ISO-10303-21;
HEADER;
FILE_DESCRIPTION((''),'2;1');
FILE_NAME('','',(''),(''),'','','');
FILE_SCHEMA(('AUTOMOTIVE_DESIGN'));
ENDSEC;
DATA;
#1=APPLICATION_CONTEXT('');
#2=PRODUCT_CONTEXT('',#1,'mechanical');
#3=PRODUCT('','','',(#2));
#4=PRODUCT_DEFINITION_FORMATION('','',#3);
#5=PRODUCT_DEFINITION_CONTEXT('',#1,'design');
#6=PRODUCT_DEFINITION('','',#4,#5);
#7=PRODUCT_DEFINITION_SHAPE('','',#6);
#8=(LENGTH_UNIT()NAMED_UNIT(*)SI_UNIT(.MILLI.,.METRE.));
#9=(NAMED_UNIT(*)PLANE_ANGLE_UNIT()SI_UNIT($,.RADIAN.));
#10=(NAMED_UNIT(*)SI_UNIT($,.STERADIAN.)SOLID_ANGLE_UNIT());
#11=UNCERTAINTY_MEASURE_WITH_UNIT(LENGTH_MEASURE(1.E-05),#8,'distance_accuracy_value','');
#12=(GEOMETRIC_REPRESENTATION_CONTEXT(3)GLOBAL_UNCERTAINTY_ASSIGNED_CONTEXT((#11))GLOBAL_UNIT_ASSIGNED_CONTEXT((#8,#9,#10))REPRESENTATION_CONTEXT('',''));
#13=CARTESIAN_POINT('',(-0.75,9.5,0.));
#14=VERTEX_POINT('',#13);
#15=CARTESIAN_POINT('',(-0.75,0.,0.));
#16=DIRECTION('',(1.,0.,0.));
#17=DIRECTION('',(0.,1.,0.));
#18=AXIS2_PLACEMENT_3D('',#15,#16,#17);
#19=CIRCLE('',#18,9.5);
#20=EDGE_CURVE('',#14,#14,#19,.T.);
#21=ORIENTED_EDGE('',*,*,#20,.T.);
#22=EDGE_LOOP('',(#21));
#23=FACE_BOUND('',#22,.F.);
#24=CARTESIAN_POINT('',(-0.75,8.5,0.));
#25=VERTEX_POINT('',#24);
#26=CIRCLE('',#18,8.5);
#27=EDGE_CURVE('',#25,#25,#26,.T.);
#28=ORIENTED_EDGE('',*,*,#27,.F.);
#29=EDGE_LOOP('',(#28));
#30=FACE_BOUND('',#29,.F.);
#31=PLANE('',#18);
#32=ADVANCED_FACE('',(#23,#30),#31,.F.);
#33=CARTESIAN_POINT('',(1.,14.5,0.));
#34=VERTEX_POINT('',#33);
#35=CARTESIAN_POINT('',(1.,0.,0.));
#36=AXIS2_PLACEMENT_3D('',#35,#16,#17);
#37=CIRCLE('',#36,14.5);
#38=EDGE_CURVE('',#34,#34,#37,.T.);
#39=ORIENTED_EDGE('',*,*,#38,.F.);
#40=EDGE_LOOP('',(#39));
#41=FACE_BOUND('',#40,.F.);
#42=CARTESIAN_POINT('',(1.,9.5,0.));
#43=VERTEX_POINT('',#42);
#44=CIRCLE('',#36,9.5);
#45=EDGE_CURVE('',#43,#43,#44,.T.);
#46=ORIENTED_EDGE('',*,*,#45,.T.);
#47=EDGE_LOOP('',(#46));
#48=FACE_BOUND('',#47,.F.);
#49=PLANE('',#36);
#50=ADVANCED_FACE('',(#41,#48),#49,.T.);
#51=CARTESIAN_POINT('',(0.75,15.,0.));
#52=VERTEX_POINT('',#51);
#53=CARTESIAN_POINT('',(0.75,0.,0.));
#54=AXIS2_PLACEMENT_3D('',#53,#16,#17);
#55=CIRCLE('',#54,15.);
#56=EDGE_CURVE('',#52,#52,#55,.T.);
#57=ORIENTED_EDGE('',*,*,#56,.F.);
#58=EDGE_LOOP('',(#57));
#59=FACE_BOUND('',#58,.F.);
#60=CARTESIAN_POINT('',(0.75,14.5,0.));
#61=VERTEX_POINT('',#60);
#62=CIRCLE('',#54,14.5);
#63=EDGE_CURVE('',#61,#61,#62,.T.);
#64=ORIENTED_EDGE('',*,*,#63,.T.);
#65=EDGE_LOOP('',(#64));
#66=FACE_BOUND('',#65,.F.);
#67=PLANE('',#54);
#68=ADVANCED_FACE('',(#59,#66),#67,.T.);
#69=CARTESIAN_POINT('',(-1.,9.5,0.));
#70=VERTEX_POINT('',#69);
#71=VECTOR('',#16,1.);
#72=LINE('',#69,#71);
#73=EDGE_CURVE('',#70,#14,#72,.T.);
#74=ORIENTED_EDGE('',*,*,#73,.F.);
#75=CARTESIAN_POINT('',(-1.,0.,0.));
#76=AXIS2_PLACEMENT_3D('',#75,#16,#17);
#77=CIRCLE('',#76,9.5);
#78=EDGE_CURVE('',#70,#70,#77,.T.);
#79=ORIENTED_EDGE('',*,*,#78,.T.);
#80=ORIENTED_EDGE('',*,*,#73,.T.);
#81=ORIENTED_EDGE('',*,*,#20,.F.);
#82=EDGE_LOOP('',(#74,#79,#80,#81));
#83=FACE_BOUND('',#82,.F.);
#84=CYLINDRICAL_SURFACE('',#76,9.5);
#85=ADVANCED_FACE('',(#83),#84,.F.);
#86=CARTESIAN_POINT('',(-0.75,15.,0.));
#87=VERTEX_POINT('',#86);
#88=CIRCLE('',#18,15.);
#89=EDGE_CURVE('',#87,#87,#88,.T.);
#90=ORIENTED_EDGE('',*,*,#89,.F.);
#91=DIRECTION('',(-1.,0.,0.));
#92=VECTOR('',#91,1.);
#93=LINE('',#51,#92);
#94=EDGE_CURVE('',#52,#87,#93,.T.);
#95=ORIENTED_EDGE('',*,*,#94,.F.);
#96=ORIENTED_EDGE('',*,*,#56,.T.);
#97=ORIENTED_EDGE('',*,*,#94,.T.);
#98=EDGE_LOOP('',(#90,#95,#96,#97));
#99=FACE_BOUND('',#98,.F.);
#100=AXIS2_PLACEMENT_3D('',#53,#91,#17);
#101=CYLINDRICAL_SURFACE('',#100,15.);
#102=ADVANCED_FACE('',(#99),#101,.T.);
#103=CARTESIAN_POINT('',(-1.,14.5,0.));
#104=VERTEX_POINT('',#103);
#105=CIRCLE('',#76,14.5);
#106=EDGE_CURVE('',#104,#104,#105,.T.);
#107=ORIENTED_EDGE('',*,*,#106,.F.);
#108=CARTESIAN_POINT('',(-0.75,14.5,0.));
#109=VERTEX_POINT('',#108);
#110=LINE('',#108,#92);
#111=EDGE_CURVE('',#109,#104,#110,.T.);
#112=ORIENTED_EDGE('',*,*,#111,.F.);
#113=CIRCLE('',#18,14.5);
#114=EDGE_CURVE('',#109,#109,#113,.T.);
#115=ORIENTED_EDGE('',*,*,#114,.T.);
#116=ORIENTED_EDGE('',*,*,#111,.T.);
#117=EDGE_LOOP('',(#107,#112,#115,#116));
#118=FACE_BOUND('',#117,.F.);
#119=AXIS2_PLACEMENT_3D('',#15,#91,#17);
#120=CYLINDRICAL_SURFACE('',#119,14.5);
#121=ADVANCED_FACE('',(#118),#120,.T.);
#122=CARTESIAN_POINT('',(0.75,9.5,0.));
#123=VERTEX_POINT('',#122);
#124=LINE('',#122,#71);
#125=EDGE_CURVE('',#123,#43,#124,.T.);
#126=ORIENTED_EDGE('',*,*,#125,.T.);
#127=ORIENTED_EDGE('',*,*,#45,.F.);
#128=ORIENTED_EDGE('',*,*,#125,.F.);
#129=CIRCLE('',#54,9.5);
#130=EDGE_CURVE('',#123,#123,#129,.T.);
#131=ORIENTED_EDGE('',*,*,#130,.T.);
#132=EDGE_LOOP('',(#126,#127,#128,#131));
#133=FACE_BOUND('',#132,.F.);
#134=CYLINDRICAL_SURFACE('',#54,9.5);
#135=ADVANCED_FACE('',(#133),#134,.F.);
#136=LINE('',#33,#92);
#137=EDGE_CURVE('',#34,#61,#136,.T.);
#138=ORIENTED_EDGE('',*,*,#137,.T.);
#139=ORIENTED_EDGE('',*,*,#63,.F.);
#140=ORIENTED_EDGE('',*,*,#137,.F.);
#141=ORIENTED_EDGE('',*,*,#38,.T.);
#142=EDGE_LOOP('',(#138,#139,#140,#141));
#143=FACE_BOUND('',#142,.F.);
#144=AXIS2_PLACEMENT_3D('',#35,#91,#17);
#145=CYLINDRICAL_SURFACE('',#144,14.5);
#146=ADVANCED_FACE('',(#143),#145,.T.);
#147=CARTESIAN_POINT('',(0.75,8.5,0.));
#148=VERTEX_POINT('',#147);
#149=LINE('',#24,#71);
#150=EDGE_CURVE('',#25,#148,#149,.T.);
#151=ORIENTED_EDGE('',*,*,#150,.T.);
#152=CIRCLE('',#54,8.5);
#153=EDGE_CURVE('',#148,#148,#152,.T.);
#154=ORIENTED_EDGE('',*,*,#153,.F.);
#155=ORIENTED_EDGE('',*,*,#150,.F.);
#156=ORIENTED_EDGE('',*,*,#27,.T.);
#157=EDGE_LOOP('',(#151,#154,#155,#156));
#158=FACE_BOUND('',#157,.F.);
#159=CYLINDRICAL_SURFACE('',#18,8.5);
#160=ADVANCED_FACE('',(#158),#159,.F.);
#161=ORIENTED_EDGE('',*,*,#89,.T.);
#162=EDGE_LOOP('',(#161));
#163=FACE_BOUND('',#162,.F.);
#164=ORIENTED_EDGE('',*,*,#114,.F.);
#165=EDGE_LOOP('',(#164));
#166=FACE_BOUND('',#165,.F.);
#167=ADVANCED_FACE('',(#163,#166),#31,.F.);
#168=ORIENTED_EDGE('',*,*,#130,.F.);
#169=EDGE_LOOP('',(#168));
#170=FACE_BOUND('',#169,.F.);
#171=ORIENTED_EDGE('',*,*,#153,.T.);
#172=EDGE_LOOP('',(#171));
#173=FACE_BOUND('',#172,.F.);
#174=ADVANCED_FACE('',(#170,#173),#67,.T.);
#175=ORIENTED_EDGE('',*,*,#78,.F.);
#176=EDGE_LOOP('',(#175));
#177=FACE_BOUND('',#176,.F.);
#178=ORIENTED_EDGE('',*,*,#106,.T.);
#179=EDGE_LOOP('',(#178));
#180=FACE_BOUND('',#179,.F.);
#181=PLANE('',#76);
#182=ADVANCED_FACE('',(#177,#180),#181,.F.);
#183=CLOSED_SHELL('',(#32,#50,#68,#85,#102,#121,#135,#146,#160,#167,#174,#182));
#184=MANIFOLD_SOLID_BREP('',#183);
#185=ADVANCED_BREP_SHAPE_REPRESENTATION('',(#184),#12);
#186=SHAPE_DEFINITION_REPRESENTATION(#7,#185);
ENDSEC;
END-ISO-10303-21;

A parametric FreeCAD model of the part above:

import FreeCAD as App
import Part
import Sketcher

doc = App.newDocument("Part")
body = doc.addObject("PartDesign::Body", "Body")

sketch1 = body.newObject("Sketcher::SketchObject", "Sketch")
sketch1.AttachmentSupport = (doc.getObject("XY_Plane"), [""])
sketch1.MapMode = "FlatFace"
sketch1.addGeometry([
    Part.LineSegment(App.Vector(-1, 14.5, 0), App.Vector(-1, 9.5, 0)),
    Part.LineSegment(App.Vector(-1, 9.5, 0), App.Vector(-0.75, 9.5, 0)),
    Part.LineSegment(App.Vector(-0.75, 9.5, 0), App.Vector(-0.75, 8.5, 0)),
    Part.LineSegment(App.Vector(-0.75, 8.5, 0), App.Vector(0.75, 8.5, 0)),
    Part.LineSegment(App.Vector(0.75, 8.5, 0), App.Vector(0.75, 9.5, 0)),
    Part.LineSegment(App.Vector(0.75, 9.5, 0), App.Vector(1, 9.5, 0)),
    Part.LineSegment(App.Vector(1, 9.5, 0), App.Vector(1, 14.5, 0)),
    Part.LineSegment(App.Vector(1, 14.5, 0), App.Vector(0.75, 14.5, 0)),
    Part.LineSegment(App.Vector(0.75, 14.5, 0), App.Vector(0.75, 15, 0)),
    Part.LineSegment(App.Vector(0.75, 15, 0), App.Vector(-0.75, 15, 0)),
    Part.LineSegment(App.Vector(-0.75, 15, 0), App.Vector(-0.75, 14.5, 0)),
    Part.LineSegment(App.Vector(-0.75, 14.5, 0), App.Vector(-1, 14.5, 0)),
], False)
sketch1.addConstraint([
    Sketcher.Constraint("Coincident", 0, 2, 1, 1),
    Sketcher.Constraint("Coincident", 1, 2, 2, 1),
    Sketcher.Constraint("Coincident", 2, 2, 3, 1),
    Sketcher.Constraint("Coincident", 3, 2, 4, 1),
    Sketcher.Constraint("Coincident", 4, 2, 5, 1),
    Sketcher.Constraint("Coincident", 5, 2, 6, 1),
    Sketcher.Constraint("Coincident", 6, 2, 7, 1),
    Sketcher.Constraint("Coincident", 7, 2, 8, 1),
    Sketcher.Constraint("Coincident", 8, 2, 9, 1),
    Sketcher.Constraint("Coincident", 9, 2, 10, 1),
    Sketcher.Constraint("Coincident", 10, 2, 11, 1),
    Sketcher.Constraint("Coincident", 11, 2, 0, 1),
    Sketcher.Constraint("Vertical", 0),
    Sketcher.Constraint("Horizontal", 1),
    Sketcher.Constraint("Vertical", 2),
    Sketcher.Constraint("Horizontal", 3),
    Sketcher.Constraint("Vertical", 4),
    Sketcher.Constraint("Horizontal", 5),
    Sketcher.Constraint("Vertical", 6),
    Sketcher.Constraint("Horizontal", 7),
    Sketcher.Constraint("Vertical", 8),
    Sketcher.Constraint("Horizontal", 9),
    Sketcher.Constraint("Vertical", 10),
    Sketcher.Constraint("Horizontal", 11),
    Sketcher.Constraint("Symmetric", 1, 2, 4, 2, -2),
    Sketcher.Constraint("Symmetric", 7, 2, 10, 2, -2),
    Sketcher.Constraint("Vertical", 4, 2, 7, 2),
    Sketcher.Constraint("Equal", 1, 5),
    Sketcher.Constraint("DistanceY", 0, 2, 0, 1, 5.0),
    Sketcher.Constraint("DistanceY", 2, 2, 2, 1, 1.0),
    Sketcher.Constraint("DistanceX", 3, 1, 3, 2, 1.5),
    Sketcher.Constraint("DistanceY", 8, 1, 8, 2, 0.5),
    Sketcher.Constraint("DistanceX", 0, 2, -1, 1, 1.0),
    Sketcher.Constraint("DistanceY", -1, 1, 8, 2, 15.0),
])
revolution = body.newObject("PartDesign::Revolution", "Revolution")
revolution.Profile = sketch1
revolution.ReferenceAxis = (sketch1, ["H_Axis"])
revolution.Angle = 360

doc.recompute()
